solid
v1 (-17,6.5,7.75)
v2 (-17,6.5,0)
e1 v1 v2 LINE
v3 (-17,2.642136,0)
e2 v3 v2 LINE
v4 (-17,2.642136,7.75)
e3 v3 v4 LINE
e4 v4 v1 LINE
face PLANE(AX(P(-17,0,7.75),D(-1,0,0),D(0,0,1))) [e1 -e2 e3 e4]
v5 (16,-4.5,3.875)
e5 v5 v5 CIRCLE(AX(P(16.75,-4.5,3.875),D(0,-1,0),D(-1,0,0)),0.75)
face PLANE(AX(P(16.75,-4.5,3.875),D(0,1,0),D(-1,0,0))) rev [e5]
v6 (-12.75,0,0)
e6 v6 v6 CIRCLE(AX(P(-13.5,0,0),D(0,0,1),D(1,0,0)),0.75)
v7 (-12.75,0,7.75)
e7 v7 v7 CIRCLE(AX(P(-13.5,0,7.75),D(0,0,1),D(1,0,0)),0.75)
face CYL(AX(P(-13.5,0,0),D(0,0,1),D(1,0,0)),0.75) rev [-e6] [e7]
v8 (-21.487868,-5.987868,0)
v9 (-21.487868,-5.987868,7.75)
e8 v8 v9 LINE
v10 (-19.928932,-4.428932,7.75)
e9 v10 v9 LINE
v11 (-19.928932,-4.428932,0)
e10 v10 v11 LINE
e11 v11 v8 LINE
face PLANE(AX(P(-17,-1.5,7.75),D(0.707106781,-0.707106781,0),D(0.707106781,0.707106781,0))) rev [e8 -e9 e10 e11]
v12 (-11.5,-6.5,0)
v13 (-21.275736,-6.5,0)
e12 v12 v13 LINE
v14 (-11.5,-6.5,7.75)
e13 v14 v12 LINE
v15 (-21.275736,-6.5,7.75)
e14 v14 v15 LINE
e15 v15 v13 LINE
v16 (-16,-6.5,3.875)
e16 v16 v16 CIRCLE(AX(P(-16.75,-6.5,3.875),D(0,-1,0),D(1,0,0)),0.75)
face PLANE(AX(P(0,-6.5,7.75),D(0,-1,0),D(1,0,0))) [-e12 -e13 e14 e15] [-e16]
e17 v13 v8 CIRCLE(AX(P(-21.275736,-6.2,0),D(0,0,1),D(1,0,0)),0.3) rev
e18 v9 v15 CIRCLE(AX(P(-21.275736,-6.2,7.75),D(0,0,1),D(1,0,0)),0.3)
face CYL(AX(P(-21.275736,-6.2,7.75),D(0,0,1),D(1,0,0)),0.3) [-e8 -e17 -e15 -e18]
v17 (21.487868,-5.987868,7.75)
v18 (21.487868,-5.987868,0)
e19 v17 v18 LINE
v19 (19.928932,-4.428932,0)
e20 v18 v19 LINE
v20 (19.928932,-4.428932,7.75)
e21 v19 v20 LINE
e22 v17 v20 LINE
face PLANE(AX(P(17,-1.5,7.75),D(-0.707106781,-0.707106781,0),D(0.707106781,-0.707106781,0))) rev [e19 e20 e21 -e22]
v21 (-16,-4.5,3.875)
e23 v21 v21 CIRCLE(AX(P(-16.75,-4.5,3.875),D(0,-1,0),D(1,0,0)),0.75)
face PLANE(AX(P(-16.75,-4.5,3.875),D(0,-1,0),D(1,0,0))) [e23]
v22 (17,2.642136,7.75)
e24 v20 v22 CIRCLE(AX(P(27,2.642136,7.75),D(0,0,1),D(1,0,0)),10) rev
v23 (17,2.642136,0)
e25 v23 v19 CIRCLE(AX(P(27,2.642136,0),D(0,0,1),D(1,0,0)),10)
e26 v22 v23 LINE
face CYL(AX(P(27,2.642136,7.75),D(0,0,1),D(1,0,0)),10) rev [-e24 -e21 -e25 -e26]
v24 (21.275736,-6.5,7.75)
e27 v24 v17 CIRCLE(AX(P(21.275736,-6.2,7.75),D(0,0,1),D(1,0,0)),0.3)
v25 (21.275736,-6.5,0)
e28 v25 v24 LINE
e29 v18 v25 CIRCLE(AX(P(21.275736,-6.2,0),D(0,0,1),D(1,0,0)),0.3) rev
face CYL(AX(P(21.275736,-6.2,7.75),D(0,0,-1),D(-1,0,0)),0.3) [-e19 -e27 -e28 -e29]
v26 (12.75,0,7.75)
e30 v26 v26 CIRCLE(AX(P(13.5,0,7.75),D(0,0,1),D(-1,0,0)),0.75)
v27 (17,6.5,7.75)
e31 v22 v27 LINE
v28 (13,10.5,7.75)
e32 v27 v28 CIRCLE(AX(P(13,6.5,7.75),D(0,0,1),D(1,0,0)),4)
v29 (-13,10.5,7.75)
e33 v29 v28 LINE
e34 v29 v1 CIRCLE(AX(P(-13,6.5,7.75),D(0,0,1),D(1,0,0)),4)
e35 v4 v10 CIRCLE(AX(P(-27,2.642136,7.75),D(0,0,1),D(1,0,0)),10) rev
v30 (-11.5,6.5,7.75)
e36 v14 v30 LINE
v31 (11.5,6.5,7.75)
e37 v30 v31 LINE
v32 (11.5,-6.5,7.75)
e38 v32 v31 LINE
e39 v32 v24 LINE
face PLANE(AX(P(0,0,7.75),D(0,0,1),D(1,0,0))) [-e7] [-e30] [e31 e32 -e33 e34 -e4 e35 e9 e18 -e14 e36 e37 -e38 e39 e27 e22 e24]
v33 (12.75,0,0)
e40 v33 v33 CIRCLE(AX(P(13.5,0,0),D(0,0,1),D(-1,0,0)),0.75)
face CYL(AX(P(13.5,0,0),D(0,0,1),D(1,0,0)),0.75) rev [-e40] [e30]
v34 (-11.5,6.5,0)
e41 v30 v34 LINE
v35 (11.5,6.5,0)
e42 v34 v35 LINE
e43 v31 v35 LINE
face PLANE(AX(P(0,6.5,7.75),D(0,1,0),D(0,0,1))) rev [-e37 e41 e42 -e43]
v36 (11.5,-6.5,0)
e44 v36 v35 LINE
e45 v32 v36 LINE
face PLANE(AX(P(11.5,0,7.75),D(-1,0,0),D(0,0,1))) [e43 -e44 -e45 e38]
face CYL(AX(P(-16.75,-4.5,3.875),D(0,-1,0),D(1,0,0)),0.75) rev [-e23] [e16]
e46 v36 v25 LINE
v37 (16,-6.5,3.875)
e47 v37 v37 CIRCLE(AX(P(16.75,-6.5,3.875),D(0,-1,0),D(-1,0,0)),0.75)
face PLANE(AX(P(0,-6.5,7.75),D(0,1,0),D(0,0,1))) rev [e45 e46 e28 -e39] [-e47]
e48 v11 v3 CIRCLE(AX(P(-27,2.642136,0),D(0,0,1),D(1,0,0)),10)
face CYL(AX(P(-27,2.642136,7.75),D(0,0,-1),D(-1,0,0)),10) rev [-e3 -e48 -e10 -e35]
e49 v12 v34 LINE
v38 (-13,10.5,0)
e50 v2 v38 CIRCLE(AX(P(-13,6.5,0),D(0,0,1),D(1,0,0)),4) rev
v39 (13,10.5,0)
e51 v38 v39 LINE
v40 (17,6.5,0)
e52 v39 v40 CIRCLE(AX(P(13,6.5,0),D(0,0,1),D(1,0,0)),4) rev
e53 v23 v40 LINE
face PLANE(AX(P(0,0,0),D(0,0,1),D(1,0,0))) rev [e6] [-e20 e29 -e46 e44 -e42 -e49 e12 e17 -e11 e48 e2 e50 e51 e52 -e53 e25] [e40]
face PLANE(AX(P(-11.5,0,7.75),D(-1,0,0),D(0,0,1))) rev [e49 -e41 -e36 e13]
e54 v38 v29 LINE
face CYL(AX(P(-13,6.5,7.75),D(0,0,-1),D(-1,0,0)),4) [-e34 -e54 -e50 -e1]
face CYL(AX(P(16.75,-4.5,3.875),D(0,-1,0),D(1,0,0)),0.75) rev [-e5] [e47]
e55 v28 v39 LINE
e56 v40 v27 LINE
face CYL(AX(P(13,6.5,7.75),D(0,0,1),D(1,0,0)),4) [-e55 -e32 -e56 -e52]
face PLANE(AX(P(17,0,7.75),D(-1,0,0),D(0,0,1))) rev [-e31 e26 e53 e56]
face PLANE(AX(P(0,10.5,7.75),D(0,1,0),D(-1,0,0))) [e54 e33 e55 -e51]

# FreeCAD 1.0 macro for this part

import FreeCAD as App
import Part
import Sketcher

V = App.Vector


def edges_at(feature, points):
    """Names of the edges that pass closest to the given points."""
    edges = feature.Shape.Edges
    near = lambda p: min(range(len(edges)), key=lambda i: edges[i].distToShape(Part.Vertex(*p))[0])
    return sorted({f"Edge{near(p) + 1}" for p in points})

doc = App.newDocument("Part")
body = doc.addObject("PartDesign::Body", "Body")

# Sketch on XY plane
sketch1 = doc.addObject("Sketcher::SketchObject", "Sketch")
body.addObject(sketch1)
sketch1.AttachmentSupport = (doc.XY_Plane, [""])
sketch1.MapMode = "FlatFace"
sketch1.addGeometry(Part.LineSegment(V(12, -6, 0), V(17, -6, 0)), False)
sketch1.addGeometry(Part.LineSegment(V(17, -6, 0), V(17, 10, 0)), False)
sketch1.addGeometry(Part.LineSegment(V(17, 10, 0), V(-17, 10, 0)), False)
sketch1.addGeometry(Part.LineSegment(V(-17, 10, 0), V(-17, -6, 0)), False)
sketch1.addGeometry(Part.LineSegment(V(-17, -6, 0), V(-12, -6, 0)), False)
sketch1.addGeometry(Part.LineSegment(V(-12, -6, 0), V(-12, 6, 0)), False)
sketch1.addGeometry(Part.LineSegment(V(-12, 6, 0), V(12, 6, 0)), False)
sketch1.addGeometry(Part.LineSegment(V(12, 6, 0), V(12, -6, 0)), False)
sketch1.addConstraint(Sketcher.Constraint("Coincident", 0, 2, 1, 1))
sketch1.addConstraint(Sketcher.Constraint("Coincident", 1, 2, 2, 1))
sketch1.addConstraint(Sketcher.Constraint("Coincident", 2, 2, 3, 1))
sketch1.addConstraint(Sketcher.Constraint("Coincident", 3, 2, 4, 1))
sketch1.addConstraint(Sketcher.Constraint("Coincident", 4, 2, 5, 1))
sketch1.addConstraint(Sketcher.Constraint("Coincident", 5, 2, 6, 1))
sketch1.addConstraint(Sketcher.Constraint("Coincident", 6, 2, 7, 1))
sketch1.addConstraint(Sketcher.Constraint("Coincident", 7, 2, 0, 1))
sketch1.addConstraint(Sketcher.Constraint("Horizontal", 0))
sketch1.addConstraint(Sketcher.Constraint("Vertical", 1))
sketch1.addConstraint(Sketcher.Constraint("Horizontal", 2))
sketch1.addConstraint(Sketcher.Constraint("Vertical", 3))
sketch1.addConstraint(Sketcher.Constraint("Horizontal", 4))
sketch1.addConstraint(Sketcher.Constraint("Vertical", 5))
sketch1.addConstraint(Sketcher.Constraint("Horizontal", 6))
sketch1.addConstraint(Sketcher.Constraint("Vertical", 7))
sketch1.addConstraint(Sketcher.Constraint("Symmetric", 4, 2, 6, 2, -1, 1))
sketch1.addConstraint(Sketcher.Constraint("Symmetric", 0, 2, 3, 2, -2))
sketch1.addConstraint(Sketcher.Constraint("DistanceX", 2, 2, 2, 1, 34.0))
sketch1.addConstraint(Sketcher.Constraint("DistanceX", 6, 1, 6, 2, 23.0))
sketch1.addConstraint(Sketcher.Constraint("DistanceY", 1, 1, 1, 2, 17.0))
sketch1.addConstraint(Sketcher.Constraint("DistanceY", 5, 1, 5, 2, 13.0))
pad1 = doc.addObject("PartDesign::Pad", "Pad")
body.addObject(pad1)
pad1.Profile = sketch1
pad1.Length = 7.75

# Sketch on XY plane
sketch2 = doc.addObject("Sketcher::SketchObject", "Sketch001")
body.addObject(sketch2)
sketch2.AttachmentSupport = (doc.XY_Plane, [""])
sketch2.MapMode = "FlatFace"
sketch2.AttachmentOffset = App.Placement(V(0, 0, 7.75), App.Rotation())
sketch2.addGeometry(Part.Circle(V(-13.5, 0, 0), V(0, 0, 1), 0.8), False)
sketch2.addGeometry(Part.Circle(V(13.5, 0, 0), V(0, 0, 1), 0.8), False)
sketch2.addConstraint(Sketcher.Constraint("Equal", 0, 1))
sketch2.addConstraint(Sketcher.Constraint("Symmetric", 0, 3, 1, 3, -1, 1))
sketch2.addConstraint(Sketcher.Constraint("PointOnObject", 0, 3, -1))
sketch2.addConstraint(Sketcher.Constraint("Diameter", 0, 1.5))
sketch2.addConstraint(Sketcher.Constraint("DistanceX", 0, 3, 1, 3, 27.0))
pocket1 = doc.addObject("PartDesign::Pocket", "Pocket")
body.addObject(pocket1)
pocket1.Profile = sketch2
pocket1.Type = "ThroughAll"

# Sketch on XY plane
sketch3 = doc.addObject("Sketcher::SketchObject", "Sketch002")
body.addObject(sketch3)
sketch3.AttachmentSupport = (doc.XY_Plane, [""])
sketch3.MapMode = "FlatFace"
sketch3.addGeometry(Part.LineSegment(V(-17, -2, 0), V(-22, -6, 0)), False)
sketch3.addGeometry(Part.LineSegment(V(-22, -6, 0), V(-17, -6, 0)), False)
sketch3.addGeometry(Part.LineSegment(V(-17, -6, 0), V(-17, -2, 0)), False)
sketch3.addGeometry(Part.LineSegment(V(22, -6, 0), V(17, -2, 0)), False)
sketch3.addGeometry(Part.LineSegment(V(17, -2, 0), V(17, -6, 0)), False)
sketch3.addGeometry(Part.LineSegment(V(17, -6, 0), V(22, -6, 0)), False)
sketch3.addConstraint(Sketcher.Constraint("Coincident", 0, 2, 1, 1))
sketch3.addConstraint(Sketcher.Constraint("Coincident", 1, 2, 2, 1))
sketch3.addConstraint(Sketcher.Constraint("Coincident", 2, 2, 0, 1))
sketch3.addConstraint(Sketcher.Constraint("Coincident", 3, 2, 4, 1))
sketch3.addConstraint(Sketcher.Constraint("Coincident", 4, 2, 5, 1))
sketch3.addConstraint(Sketcher.Constraint("Coincident", 5, 2, 3, 1))
sketch3.addConstraint(Sketcher.Constraint("Horizontal", 1))
sketch3.addConstraint(Sketcher.Constraint("Vertical", 2))
sketch3.addConstraint(Sketcher.Constraint("Vertical", 4))
sketch3.addConstraint(Sketcher.Constraint("Horizontal", 5))
sketch3.addConstraint(Sketcher.Constraint("Symmetric", 2, 2, 3, 2, -2))
sketch3.addConstraint(Sketcher.Constraint("Symmetric", 0, 2, 5, 2, -2))
sketch3.addConstraint(Sketcher.Constraint("Perpendicular", 0, 3))
sketch3.addConstraint(Sketcher.Constraint("DistanceX", 1, 1, 1, 2, 5.0))
sketch3.addConstraint(Sketcher.Constraint("DistanceX", 0, 2, -1, 1, 22.0))
sketch3.addConstraint(Sketcher.Constraint("DistanceY", 0, 2, -1, 1, 6.5))
pad2 = doc.addObject("PartDesign::Pad", "Pad001")
body.addObject(pad2)
pad2.Profile = sketch3
pad2.Length = 7.75

# Sketch on XZ plane
sketch4 = doc.addObject("Sketcher::SketchObject", "Sketch003")
body.addObject(sketch4)
sketch4.AttachmentSupport = (doc.XZ_Plane, [""])
sketch4.MapMode = "FlatFace"
sketch4.AttachmentOffset = App.Placement(V(0, 0, 6.5), App.Rotation())
sketch4.addGeometry(Part.Circle(V(-16.8, 3.9, 0), V(0, 0, 1), 0.8), False)
sketch4.addGeometry(Part.Circle(V(16.8, 3.9, 0), V(0, 0, 1), 0.8), False)
sketch4.addConstraint(Sketcher.Constraint("Equal", 0, 1))
sketch4.addConstraint(Sketcher.Constraint("Symmetric", 0, 3, 1, 3, -2))
sketch4.addConstraint(Sketcher.Constraint("Diameter", 0, 1.5))
sketch4.addConstraint(Sketcher.Constraint("DistanceX", 0, 3, 1, 3, 33.5))
sketch4.addConstraint(Sketcher.Constraint("DistanceY", -1, 1, 0, 3, 3.875))
pocket2 = doc.addObject("PartDesign::Pocket", "Pocket001")
body.addObject(pocket2)
pocket2.Profile = sketch4
pocket2.Length = 2
doc.recompute()

fillet = doc.addObject("PartDesign::Fillet", "Fillet")
body.addObject(fillet)
fillet.Base = (pocket2, edges_at(pocket2, [(-17, -1.5, 3.875), (17, -1.5, 3.875)]))
fillet.Radius = 10
doc.recompute()

fillet2 = doc.addObject("PartDesign::Fillet", "Fillet001")
body.addObject(fillet2)
fillet2.Base = (fillet, edges_at(fillet, [(-17, 10.5, 3.875), (17, 10.5, 3.875)]))
fillet2.Radius = 4
doc.recompute()

fillet3 = doc.addObject("PartDesign::Fillet", "Fillet002")
body.addObject(fillet3)
fillet3.Base = (fillet2, edges_at(fillet2, [(-22, -6.5, 3.875), (22, -6.5, 3.875)]))
fillet3.Radius = 0.3

doc.recompute()
